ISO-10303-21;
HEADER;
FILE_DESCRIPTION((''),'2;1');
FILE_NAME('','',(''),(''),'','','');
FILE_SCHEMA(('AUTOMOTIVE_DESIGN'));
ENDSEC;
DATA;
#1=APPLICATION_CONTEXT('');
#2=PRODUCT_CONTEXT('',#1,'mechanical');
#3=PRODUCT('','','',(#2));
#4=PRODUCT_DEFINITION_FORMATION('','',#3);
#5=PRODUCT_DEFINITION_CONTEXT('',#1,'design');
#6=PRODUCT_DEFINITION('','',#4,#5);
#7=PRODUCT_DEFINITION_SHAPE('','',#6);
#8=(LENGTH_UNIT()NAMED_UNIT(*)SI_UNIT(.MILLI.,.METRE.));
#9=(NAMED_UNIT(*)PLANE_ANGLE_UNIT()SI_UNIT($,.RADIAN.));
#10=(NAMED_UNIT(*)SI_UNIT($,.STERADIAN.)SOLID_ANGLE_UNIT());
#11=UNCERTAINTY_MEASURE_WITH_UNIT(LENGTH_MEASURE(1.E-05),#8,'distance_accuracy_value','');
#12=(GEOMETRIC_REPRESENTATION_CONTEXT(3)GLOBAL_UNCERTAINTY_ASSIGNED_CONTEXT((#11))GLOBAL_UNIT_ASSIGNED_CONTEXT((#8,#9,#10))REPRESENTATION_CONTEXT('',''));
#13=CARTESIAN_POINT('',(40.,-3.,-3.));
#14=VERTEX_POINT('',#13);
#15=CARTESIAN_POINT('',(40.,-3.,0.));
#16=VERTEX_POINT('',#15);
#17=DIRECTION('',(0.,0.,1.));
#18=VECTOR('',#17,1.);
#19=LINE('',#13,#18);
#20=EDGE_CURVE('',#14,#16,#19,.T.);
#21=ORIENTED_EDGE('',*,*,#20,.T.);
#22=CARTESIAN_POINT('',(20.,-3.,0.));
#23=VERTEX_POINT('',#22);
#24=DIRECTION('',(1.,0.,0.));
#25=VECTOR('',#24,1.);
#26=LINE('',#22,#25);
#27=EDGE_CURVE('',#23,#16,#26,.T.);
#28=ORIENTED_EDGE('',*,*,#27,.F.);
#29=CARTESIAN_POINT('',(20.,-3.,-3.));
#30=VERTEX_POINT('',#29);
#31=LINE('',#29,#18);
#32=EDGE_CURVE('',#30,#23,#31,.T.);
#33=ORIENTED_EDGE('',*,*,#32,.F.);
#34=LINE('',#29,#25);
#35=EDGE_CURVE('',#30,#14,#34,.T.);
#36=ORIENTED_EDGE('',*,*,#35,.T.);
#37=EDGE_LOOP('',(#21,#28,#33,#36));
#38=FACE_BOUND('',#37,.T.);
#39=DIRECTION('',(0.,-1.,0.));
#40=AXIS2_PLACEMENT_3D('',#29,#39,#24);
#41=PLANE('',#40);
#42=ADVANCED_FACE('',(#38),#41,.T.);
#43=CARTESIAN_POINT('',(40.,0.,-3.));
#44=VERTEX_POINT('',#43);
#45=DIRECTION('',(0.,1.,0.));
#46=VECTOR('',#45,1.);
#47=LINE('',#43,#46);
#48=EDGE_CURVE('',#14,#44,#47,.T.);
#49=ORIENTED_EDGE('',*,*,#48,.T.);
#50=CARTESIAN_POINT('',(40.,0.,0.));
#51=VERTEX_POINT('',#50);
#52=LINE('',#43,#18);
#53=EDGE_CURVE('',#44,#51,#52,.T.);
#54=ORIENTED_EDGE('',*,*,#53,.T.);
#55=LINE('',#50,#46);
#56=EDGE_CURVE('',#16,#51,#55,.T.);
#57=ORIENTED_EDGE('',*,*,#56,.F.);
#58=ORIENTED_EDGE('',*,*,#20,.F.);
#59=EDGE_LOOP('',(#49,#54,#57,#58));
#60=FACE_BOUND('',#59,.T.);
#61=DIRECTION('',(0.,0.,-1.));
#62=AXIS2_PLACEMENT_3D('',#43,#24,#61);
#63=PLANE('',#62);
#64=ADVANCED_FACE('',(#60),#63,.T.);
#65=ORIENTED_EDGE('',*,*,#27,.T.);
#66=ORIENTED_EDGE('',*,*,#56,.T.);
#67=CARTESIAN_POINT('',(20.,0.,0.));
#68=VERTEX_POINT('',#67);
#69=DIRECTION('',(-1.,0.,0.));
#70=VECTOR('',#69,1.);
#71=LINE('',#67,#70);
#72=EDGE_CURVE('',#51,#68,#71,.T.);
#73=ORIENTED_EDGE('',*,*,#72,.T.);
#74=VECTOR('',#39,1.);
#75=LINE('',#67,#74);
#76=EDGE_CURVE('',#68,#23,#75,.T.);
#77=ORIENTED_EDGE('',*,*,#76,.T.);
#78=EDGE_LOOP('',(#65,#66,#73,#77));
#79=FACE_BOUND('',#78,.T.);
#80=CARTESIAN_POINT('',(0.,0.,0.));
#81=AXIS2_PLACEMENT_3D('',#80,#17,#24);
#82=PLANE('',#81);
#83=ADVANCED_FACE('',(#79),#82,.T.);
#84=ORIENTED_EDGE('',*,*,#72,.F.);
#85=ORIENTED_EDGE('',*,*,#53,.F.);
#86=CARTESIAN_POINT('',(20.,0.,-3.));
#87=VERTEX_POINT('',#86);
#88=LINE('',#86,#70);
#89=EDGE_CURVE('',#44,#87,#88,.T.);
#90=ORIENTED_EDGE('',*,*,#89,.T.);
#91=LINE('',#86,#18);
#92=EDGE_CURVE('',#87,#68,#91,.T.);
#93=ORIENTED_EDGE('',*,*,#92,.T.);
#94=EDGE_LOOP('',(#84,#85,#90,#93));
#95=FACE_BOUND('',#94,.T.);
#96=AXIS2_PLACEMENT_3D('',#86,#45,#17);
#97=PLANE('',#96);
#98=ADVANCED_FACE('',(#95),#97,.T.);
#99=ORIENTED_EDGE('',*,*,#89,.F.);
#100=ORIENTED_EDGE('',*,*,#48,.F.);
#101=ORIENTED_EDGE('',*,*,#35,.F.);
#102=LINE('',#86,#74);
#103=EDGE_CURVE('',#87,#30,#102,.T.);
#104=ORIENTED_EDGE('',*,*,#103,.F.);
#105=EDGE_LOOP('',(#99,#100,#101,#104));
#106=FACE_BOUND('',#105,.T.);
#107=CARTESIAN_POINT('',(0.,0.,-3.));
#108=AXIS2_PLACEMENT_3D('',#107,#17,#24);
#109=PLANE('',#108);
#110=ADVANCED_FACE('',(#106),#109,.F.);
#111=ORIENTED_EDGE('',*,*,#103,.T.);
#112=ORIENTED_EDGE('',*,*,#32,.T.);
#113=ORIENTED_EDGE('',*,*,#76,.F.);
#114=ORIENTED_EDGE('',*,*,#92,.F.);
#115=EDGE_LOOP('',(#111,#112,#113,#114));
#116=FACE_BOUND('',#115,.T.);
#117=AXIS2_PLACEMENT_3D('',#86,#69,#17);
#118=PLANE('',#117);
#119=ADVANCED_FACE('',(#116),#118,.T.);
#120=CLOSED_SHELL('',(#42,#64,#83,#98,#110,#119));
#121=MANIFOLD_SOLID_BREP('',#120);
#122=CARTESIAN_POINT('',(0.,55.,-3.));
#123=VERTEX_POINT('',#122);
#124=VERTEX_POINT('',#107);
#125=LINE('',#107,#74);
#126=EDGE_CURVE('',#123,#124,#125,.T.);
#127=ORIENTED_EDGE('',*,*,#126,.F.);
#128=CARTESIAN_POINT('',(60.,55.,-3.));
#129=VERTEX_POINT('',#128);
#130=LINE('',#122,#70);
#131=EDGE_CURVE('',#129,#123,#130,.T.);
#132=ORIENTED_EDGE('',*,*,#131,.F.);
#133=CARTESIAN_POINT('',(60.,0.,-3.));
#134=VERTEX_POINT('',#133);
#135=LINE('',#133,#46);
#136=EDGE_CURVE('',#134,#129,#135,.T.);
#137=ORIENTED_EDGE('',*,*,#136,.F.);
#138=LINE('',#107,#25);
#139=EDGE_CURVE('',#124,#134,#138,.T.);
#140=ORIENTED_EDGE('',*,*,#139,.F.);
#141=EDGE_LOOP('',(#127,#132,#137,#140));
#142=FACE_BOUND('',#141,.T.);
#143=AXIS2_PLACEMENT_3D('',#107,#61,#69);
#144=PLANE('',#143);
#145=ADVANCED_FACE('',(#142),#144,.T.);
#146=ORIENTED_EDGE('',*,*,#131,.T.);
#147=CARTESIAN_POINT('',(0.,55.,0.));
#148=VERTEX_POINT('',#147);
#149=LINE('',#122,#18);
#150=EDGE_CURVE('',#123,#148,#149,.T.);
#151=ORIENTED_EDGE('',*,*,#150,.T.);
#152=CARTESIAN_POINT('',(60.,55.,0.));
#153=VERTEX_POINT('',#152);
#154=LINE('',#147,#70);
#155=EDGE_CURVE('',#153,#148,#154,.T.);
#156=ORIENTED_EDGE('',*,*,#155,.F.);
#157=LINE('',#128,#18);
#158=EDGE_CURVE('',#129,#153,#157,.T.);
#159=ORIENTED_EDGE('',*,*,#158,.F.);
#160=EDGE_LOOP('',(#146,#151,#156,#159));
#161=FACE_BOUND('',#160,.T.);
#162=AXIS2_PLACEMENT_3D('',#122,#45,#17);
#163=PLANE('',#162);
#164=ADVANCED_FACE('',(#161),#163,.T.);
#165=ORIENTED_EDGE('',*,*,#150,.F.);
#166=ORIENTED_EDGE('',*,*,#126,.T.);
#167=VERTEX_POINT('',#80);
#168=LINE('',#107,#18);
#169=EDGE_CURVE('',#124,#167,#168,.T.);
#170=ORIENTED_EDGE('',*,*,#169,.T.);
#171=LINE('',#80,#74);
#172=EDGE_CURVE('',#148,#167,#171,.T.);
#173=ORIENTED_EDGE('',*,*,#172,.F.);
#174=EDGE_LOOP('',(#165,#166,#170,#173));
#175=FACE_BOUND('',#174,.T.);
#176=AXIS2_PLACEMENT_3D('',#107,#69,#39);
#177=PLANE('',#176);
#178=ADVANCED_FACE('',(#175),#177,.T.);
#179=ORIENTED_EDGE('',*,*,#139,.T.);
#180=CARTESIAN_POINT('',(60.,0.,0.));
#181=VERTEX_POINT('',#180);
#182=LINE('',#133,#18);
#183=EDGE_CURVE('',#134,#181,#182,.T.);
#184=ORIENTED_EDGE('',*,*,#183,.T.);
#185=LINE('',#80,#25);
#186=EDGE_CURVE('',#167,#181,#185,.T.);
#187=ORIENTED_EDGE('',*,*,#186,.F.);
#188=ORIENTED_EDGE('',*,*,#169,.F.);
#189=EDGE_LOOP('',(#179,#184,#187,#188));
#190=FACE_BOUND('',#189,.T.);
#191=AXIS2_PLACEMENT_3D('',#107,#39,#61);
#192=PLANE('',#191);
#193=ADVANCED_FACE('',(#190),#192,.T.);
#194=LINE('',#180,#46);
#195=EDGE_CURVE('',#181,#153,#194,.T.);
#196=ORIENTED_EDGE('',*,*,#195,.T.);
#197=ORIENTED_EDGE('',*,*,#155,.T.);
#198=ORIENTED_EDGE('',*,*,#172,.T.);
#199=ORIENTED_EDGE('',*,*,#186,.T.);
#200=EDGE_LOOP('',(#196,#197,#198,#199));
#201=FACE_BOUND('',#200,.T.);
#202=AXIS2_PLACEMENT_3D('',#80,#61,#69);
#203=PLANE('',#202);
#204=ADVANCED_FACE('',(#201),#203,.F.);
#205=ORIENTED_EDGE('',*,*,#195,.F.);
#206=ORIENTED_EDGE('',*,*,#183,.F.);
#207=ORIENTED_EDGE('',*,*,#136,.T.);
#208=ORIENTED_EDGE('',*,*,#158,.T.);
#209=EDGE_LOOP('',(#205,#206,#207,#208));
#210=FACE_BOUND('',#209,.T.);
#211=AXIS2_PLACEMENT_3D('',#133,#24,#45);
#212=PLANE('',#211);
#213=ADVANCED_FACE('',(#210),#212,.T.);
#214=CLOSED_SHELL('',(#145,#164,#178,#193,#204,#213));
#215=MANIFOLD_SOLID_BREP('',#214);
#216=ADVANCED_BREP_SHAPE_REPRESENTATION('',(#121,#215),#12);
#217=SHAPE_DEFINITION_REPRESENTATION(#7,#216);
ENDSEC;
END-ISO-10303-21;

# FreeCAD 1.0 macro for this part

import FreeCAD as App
import Part
import Sketcher

V = App.Vector


def add_polygon(sketch, points):
    """Adds a closed chain of lines whose ends are joined by coincident constraints."""
    first, n = sketch.GeometryCount, len(points)
    for a, b in zip(points, points[1:] + points[:1]):
        sketch.addGeometry(Part.LineSegment(App.Vector(*a, 0), App.Vector(*b, 0)), False)
    for i in range(n):
        sketch.addConstraint(Sketcher.Constraint("Coincident", first + i, 2, first + (i + 1) % n, 1))

doc = App.newDocument("Part")
body = doc.addObject("PartDesign::Body", "Body")

# Sketch on XY plane
sketch1 = doc.addObject("Sketcher::SketchObject", "Sketch")
body.addObject(sketch1)
sketch1.AttachmentSupport = (doc.XY_Plane, [""])
sketch1.MapMode = "FlatFace"
add_polygon(sketch1, [(0, 55), (0, 0), (60, 0), (60, 55)])  # lines 0-3
sketch1.addConstraint([
    Sketcher.Constraint("Vertical", 0),
    Sketcher.Constraint("Horizontal", 1),
    Sketcher.Constraint("Vertical", 2),
    Sketcher.Constraint("Horizontal", 3),
    Sketcher.Constraint("Coincident", 0, 2, -1, 1),
    Sketcher.Constraint("DistanceX", 1, 1, 1, 2, 60.0),
    Sketcher.Constraint("DistanceY", 0, 2, 0, 1, 55.0),
])
pad1 = doc.addObject("PartDesign::Pad", "Pad")
body.addObject(pad1)
pad1.Profile = sketch1
pad1.Length = 3
pad1.Reversed = True
body2 = doc.addObject("PartDesign::Body", "Body001")

# Sketch on XY plane
sketch2 = doc.addObject("Sketcher::SketchObject", "Sketch001")
body2.addObject(sketch2)
sketch2.AttachmentSupport = (doc.getObject("XY_Plane001"), [""])
sketch2.MapMode = "FlatFace"
add_polygon(sketch2, [(20, 0), (20, -3), (40, -3), (40, 0)])  # lines 0-3
sketch2.addConstraint([
    Sketcher.Constraint("Vertical", 0),
    Sketcher.Constraint("Horizontal", 1),
    Sketcher.Constraint("Vertical", 2),
    Sketcher.Constraint("Horizontal", 3),
    Sketcher.Constraint("PointOnObject", 2, 2, -1),
    Sketcher.Constraint("DistanceX", 1, 1, 1, 2, 20.0),
    Sketcher.Constraint("DistanceY", 0, 2, 0, 1, 3.0),
    Sketcher.Constraint("DistanceX", -1, 1, 0, 2, 20.0),
])
pad2 = doc.addObject("PartDesign::Pad", "Pad001")
body2.addObject(pad2)
pad2.Profile = sketch2
pad2.Length = 3
pad2.Reversed = True

doc.recompute()
